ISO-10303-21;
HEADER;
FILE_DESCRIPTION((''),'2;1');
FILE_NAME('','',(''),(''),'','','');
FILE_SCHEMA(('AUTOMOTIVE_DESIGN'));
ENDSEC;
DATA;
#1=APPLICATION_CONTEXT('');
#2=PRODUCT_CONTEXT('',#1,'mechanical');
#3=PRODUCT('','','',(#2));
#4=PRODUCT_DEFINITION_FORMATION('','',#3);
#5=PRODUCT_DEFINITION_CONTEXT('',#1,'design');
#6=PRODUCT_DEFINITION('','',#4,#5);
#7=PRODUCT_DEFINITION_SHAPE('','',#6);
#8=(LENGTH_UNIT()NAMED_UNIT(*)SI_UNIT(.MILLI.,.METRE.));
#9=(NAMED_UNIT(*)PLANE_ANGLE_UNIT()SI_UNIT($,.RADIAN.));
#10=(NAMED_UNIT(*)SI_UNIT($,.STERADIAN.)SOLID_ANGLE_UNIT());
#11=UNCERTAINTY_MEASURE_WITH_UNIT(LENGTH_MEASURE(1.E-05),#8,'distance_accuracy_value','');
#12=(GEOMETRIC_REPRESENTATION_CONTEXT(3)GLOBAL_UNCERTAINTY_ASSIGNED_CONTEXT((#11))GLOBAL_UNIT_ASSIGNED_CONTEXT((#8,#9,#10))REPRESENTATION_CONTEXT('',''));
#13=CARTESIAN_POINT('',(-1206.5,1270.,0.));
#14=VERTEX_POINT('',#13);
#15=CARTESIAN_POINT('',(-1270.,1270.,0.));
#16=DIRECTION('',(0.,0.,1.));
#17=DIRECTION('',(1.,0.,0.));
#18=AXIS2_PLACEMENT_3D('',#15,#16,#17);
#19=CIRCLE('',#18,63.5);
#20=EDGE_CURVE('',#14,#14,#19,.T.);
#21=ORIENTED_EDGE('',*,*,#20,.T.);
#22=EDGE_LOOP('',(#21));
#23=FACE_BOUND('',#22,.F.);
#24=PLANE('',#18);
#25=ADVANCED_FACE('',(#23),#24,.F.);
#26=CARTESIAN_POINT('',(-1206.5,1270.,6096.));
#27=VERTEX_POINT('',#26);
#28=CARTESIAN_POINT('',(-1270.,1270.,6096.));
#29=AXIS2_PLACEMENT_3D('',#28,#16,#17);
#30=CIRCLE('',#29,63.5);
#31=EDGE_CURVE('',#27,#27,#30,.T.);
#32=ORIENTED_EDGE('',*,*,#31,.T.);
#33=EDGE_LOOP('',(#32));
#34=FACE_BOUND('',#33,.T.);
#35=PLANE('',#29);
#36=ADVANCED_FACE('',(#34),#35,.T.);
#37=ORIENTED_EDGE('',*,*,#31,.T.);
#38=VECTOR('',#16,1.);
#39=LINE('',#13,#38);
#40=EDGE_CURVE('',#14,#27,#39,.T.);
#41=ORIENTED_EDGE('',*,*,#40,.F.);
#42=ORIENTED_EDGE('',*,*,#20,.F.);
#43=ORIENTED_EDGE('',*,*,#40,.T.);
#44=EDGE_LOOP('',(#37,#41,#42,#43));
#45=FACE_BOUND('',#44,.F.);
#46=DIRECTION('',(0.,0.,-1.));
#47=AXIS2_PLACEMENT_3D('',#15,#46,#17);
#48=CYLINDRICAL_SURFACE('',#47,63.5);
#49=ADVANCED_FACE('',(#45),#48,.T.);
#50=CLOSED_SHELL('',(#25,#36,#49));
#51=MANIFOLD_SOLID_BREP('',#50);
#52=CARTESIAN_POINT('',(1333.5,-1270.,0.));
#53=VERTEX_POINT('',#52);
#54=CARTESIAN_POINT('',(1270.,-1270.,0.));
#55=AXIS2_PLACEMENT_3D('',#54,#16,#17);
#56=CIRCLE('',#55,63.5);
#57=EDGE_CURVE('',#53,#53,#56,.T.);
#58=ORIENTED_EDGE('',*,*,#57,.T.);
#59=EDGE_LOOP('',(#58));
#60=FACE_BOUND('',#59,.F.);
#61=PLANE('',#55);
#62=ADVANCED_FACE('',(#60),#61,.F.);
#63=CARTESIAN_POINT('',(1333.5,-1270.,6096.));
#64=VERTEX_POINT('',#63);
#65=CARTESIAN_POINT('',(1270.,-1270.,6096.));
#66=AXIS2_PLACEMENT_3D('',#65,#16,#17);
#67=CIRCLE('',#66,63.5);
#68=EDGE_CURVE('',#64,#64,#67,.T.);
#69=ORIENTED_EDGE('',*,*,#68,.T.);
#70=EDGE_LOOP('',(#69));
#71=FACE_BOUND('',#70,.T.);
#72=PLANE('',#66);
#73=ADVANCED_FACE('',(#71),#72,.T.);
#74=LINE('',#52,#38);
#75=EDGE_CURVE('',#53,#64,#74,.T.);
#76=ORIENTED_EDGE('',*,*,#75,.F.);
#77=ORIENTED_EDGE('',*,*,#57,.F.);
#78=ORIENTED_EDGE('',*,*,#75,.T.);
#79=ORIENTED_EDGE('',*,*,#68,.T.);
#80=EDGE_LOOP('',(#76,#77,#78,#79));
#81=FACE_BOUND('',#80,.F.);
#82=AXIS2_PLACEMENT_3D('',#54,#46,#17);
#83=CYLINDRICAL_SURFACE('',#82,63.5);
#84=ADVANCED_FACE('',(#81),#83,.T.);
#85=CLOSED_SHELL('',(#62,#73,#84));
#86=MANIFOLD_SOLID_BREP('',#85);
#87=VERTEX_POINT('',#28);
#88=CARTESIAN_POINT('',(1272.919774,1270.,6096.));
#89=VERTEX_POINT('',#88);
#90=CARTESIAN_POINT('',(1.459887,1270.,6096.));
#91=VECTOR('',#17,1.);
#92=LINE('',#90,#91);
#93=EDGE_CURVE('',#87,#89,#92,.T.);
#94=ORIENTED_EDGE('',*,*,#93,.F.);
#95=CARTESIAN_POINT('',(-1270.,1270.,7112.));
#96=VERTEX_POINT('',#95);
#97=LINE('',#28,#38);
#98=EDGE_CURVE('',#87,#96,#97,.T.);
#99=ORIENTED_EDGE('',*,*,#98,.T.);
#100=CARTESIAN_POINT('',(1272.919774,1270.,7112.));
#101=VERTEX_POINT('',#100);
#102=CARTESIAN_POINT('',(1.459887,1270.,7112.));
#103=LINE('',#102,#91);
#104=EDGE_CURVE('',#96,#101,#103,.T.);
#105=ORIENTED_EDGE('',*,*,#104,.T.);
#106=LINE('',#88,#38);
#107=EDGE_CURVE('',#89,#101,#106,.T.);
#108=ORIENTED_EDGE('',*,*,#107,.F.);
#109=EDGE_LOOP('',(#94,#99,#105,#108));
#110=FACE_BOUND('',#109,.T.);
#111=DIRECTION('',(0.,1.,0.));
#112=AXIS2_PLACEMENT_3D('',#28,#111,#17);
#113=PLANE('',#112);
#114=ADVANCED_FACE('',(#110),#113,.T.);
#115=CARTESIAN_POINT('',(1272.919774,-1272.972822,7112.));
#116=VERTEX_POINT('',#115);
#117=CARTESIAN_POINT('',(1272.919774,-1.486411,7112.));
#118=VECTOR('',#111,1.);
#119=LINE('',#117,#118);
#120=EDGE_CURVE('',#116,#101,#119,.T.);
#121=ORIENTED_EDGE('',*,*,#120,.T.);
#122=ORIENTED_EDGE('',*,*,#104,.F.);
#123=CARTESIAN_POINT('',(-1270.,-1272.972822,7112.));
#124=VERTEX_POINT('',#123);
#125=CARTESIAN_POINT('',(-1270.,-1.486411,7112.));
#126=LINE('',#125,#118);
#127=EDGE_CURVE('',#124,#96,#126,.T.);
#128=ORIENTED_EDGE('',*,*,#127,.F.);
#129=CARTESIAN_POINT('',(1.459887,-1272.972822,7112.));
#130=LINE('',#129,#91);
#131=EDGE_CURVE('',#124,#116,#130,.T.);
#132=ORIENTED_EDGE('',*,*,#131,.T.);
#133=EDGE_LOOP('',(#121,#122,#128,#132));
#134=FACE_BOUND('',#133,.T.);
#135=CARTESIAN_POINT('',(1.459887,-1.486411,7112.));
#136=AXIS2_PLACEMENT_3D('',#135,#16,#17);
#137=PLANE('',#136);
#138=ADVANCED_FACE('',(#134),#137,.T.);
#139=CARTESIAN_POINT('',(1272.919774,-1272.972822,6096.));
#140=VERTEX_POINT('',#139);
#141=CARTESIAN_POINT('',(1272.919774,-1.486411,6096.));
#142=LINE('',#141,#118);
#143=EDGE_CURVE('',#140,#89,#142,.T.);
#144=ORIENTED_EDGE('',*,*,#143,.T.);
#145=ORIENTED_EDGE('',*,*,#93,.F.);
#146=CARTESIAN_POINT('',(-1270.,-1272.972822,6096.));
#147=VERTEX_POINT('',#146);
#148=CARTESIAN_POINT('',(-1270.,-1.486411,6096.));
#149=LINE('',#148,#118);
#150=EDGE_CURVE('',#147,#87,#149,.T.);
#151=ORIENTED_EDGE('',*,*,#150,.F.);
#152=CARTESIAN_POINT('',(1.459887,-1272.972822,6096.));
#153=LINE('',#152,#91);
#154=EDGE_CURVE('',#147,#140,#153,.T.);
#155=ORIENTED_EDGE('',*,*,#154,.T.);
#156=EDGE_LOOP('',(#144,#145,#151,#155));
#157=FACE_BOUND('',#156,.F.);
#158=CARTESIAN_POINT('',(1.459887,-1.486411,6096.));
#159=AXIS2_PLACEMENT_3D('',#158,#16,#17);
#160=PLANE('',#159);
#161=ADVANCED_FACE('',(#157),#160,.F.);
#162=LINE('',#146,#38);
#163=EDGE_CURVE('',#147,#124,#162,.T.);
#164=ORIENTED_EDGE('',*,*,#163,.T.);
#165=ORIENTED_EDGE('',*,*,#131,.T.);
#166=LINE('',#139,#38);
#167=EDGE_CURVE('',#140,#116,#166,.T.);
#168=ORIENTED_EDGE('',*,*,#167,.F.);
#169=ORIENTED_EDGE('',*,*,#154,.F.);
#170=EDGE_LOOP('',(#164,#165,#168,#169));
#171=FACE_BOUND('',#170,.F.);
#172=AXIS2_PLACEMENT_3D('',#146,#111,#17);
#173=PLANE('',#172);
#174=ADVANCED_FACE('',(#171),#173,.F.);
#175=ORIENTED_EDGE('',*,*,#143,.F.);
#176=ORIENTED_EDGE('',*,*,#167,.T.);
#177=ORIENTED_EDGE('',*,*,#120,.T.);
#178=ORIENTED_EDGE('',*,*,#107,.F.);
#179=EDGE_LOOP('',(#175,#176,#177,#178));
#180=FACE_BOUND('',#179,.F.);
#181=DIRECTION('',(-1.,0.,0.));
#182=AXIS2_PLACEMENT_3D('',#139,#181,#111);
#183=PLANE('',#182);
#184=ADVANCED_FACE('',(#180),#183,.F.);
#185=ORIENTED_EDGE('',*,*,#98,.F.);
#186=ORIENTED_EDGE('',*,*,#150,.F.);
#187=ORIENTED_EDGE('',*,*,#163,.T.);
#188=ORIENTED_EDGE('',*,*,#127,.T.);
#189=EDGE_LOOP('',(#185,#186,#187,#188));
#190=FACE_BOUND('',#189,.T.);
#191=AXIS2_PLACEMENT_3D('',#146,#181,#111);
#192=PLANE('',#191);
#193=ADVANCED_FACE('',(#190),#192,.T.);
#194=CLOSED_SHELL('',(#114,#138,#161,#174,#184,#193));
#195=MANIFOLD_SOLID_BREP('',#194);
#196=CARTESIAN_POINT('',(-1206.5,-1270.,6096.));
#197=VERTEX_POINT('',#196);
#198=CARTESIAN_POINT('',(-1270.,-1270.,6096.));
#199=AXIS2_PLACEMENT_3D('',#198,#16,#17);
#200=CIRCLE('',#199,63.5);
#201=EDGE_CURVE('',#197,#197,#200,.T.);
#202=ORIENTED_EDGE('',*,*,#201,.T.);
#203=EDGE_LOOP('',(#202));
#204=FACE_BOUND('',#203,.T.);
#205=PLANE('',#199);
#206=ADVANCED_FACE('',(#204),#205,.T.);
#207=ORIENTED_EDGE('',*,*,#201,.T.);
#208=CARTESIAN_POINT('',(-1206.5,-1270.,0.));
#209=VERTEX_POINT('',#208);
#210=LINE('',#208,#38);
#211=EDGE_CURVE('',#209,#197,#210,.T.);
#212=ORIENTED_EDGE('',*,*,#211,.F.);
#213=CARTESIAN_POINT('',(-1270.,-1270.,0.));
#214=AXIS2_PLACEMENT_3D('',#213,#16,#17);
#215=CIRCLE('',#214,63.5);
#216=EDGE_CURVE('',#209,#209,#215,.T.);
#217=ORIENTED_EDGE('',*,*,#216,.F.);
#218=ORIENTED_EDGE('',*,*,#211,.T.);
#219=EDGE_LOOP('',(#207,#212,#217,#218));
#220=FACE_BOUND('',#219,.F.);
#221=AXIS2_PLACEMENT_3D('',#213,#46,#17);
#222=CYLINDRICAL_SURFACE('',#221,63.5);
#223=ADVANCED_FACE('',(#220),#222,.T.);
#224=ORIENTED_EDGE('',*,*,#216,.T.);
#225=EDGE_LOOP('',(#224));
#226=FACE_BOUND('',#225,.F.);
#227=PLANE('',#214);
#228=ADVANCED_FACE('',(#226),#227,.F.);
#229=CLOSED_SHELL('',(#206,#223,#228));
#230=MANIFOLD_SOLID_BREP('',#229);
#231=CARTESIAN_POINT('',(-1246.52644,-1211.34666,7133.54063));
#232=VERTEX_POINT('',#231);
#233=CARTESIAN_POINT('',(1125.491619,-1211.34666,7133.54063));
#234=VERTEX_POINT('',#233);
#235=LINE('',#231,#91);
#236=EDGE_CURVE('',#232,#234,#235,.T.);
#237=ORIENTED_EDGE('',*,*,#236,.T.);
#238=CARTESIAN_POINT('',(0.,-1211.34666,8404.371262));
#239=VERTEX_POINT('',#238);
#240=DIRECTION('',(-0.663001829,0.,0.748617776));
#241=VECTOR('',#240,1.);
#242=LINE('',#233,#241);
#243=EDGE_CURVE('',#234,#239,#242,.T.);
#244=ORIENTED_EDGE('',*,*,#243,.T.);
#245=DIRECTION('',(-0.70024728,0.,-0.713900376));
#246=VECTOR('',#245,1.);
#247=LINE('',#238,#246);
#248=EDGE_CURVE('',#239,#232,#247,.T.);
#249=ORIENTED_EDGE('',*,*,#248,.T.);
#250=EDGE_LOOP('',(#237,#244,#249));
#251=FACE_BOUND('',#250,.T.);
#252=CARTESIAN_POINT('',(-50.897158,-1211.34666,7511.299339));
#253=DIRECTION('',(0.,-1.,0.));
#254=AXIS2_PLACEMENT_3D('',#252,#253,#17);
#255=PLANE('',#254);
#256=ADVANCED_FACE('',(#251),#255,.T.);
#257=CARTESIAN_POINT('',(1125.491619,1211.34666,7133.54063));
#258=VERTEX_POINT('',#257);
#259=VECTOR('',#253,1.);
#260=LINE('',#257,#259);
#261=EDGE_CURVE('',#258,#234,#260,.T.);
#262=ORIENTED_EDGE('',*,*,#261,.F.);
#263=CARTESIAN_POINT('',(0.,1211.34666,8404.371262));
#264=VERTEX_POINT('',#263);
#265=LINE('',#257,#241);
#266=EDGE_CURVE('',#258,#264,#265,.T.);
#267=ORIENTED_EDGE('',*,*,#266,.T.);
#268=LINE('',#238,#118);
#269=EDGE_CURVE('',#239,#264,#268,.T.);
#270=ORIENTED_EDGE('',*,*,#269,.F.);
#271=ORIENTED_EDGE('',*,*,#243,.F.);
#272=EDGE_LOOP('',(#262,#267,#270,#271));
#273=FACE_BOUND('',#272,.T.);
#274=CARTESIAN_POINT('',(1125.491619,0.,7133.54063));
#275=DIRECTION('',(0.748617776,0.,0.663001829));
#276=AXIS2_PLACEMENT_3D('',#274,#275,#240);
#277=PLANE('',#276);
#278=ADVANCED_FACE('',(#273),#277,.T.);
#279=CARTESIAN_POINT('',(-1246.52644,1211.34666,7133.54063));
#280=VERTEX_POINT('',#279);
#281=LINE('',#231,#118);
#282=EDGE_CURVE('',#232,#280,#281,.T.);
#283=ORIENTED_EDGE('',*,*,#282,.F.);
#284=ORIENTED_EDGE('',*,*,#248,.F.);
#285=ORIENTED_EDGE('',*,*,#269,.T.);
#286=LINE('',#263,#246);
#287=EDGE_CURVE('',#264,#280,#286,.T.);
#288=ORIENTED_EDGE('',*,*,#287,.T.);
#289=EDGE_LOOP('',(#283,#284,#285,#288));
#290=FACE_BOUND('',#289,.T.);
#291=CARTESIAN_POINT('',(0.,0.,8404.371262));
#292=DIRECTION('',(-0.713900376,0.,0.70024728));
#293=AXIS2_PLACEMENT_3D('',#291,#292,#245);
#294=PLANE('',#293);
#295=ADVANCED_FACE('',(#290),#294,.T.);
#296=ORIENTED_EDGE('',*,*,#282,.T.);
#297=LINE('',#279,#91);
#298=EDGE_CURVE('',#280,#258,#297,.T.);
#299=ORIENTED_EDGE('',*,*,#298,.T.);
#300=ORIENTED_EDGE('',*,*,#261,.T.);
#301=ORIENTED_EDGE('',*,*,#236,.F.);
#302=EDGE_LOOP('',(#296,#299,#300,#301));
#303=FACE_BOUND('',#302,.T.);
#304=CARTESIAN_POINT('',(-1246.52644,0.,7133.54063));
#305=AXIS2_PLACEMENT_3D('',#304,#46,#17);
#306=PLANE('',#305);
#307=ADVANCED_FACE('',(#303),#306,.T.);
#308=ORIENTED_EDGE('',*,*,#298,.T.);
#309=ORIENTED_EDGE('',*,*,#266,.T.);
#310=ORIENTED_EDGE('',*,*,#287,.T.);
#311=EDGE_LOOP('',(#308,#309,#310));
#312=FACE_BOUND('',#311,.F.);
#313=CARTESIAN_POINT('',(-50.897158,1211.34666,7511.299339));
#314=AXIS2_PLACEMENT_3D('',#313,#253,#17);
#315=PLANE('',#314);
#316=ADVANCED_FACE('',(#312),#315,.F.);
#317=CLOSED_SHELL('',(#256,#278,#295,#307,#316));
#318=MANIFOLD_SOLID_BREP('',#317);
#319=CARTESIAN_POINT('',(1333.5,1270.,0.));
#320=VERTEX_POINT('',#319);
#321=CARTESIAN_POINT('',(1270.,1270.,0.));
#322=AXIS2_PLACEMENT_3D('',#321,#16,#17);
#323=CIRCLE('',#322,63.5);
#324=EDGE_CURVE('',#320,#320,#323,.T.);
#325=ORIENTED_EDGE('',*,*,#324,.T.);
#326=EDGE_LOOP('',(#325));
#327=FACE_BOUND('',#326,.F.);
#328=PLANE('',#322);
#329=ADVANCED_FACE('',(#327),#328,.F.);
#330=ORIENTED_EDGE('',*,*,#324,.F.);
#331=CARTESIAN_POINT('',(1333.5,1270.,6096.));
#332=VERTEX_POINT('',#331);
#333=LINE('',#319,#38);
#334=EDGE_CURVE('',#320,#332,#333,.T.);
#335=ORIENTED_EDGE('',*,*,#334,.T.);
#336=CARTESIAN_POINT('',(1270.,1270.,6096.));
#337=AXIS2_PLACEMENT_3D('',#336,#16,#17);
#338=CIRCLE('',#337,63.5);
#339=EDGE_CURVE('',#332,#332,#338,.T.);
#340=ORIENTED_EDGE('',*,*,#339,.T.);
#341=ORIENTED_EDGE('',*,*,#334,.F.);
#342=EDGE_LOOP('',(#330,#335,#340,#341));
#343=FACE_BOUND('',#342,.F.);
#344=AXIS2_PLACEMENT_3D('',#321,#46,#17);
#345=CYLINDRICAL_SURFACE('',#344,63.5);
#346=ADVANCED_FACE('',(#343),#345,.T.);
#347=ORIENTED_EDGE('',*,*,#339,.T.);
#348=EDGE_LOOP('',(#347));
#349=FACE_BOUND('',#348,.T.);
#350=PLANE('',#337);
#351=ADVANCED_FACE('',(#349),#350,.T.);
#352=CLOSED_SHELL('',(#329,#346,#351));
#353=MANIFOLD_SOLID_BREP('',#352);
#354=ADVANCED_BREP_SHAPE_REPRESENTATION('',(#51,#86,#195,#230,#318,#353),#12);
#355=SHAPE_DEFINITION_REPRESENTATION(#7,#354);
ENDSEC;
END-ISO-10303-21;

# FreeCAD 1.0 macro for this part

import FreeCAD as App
import Part
import Sketcher

V = App.Vector
Q = App.Units.Quantity


def add_polygon(sketch, points):
    """Adds a closed chain of lines whose ends are joined by coincident constraints."""
    first, n = sketch.GeometryCount, len(points)
    for a, b in zip(points, points[1:] + points[:1]):
        sketch.addGeometry(Part.LineSegment(App.Vector(*a, 0), App.Vector(*b, 0)), False)
    for i in range(n):
        sketch.addConstraint(Sketcher.Constraint("Coincident", first + i, 2, first + (i + 1) % n, 1))

doc = App.newDocument("Part")
body = doc.addObject("PartDesign::Body", "Body")
body.AllowCompound = True

# Sketch on XY plane
sketch1 = body.newObject("Sketcher::SketchObject", "Sketch")
sketch1.AttachmentSupport = (doc.getObject("XY_Plane"), [""])
sketch1.MapMode = "FlatFace"
sketch1.addGeometry([
    Part.Circle(V(-1270, 1270, 0), V(0, 0, 1), 64),
    Part.Circle(V(1270, 1270, 0), V(0, 0, 1), 64),
    Part.Circle(V(-1270, -1270, 0), V(0, 0, 1), 64),
    Part.Circle(V(1270, -1270, 0), V(0, 0, 1), 64),
], False)
sketch1.addConstraint([
    Sketcher.Constraint("Equal", 0, 1),
    Sketcher.Constraint("Equal", 1, 2),
    Sketcher.Constraint("Equal", 2, 3),
    Sketcher.Constraint("Symmetric", 1, 3, 2, 3, -1, 1),
    Sketcher.Constraint("Symmetric", 0, 3, 3, 3, -1, 1),
    Sketcher.Constraint("Symmetric", 0, 3, 1, 3, -2),
    Sketcher.Constraint("Diameter", 0, Q("5 in")),
    Sketcher.Constraint("DistanceX", 0, 3, -1, 1, Q("50 in")),
    Sketcher.Constraint("DistanceY", -1, 1, 0, 3, Q("50 in")),
])
pad1 = body.newObject("PartDesign::Pad", "Pad")
pad1.Profile = sketch1
pad1.Length = Q("240 in")
body2 = doc.addObject("PartDesign::Body", "Body001")

# Sketch on XY plane
sketch2 = body2.newObject("Sketcher::SketchObject", "Sketch001")
sketch2.AttachmentSupport = (doc.getObject("XY_Plane001"), [""])
sketch2.MapMode = "FlatFace"
sketch2.AttachmentOffset = App.Placement(V(0, 0, 240 * 25.4), App.Rotation())
add_polygon(sketch2, [(-1270, 1270), (-1270, -1273), (1273, -1273), (1273, 1270)])  # lines 0-3
sketch2.addConstraint([
    Sketcher.Constraint("Vertical", 0),
    Sketcher.Constraint("Horizontal", 1),
    Sketcher.Constraint("Vertical", 2),
    Sketcher.Constraint("Horizontal", 3),
    Sketcher.Constraint("DistanceX", 0, 2, -1, 1, Q("50 in")),
    Sketcher.Constraint("DistanceY", -1, 1, 2, 2, Q("50 in")),
    Sketcher.Constraint("DistanceY", 0, 2, 0, 1, Q("2542.972822 mm")),
    Sketcher.Constraint("DistanceX", 1, 1, 1, 2, Q("2542.919774 mm")),
])
pad2 = body2.newObject("PartDesign::Pad", "Pad001")
pad2.Profile = sketch2
pad2.Length = Q("40 in")
body3 = doc.addObject("PartDesign::Body", "Body002")

# Sketch on XZ plane
sketch3 = body3.newObject("Sketcher::SketchObject", "Sketch002")
sketch3.AttachmentSupport = (doc.getObject("XZ_Plane002"), [""])
sketch3.MapMode = "FlatFace"
add_polygon(sketch3, [(-1247, 7134), (1125, 7134), (0, 8404)])  # lines 0-2
sketch3.addConstraint([
    Sketcher.Constraint("Horizontal", 0),
    Sketcher.Constraint("PointOnObject", 1, 2, -2),
    Sketcher.Constraint("DistanceX", 0, 1, 0, 2, Q("2372.018059 mm")),
    Sketcher.Constraint("DistanceX", -1, 1, 0, 2, Q("1125.491619 mm")),
    Sketcher.Constraint("DistanceY", -1, 1, 0, 2, Q("7133.54063 mm")),
    Sketcher.Constraint("Distance", 1, Q("1697.569403 mm")),
])
pad3 = body3.newObject("PartDesign::Pad", "Pad002")
pad3.Profile = sketch3
pad3.Length = 2422.69332
pad3.Midplane = True

doc.recompute()
